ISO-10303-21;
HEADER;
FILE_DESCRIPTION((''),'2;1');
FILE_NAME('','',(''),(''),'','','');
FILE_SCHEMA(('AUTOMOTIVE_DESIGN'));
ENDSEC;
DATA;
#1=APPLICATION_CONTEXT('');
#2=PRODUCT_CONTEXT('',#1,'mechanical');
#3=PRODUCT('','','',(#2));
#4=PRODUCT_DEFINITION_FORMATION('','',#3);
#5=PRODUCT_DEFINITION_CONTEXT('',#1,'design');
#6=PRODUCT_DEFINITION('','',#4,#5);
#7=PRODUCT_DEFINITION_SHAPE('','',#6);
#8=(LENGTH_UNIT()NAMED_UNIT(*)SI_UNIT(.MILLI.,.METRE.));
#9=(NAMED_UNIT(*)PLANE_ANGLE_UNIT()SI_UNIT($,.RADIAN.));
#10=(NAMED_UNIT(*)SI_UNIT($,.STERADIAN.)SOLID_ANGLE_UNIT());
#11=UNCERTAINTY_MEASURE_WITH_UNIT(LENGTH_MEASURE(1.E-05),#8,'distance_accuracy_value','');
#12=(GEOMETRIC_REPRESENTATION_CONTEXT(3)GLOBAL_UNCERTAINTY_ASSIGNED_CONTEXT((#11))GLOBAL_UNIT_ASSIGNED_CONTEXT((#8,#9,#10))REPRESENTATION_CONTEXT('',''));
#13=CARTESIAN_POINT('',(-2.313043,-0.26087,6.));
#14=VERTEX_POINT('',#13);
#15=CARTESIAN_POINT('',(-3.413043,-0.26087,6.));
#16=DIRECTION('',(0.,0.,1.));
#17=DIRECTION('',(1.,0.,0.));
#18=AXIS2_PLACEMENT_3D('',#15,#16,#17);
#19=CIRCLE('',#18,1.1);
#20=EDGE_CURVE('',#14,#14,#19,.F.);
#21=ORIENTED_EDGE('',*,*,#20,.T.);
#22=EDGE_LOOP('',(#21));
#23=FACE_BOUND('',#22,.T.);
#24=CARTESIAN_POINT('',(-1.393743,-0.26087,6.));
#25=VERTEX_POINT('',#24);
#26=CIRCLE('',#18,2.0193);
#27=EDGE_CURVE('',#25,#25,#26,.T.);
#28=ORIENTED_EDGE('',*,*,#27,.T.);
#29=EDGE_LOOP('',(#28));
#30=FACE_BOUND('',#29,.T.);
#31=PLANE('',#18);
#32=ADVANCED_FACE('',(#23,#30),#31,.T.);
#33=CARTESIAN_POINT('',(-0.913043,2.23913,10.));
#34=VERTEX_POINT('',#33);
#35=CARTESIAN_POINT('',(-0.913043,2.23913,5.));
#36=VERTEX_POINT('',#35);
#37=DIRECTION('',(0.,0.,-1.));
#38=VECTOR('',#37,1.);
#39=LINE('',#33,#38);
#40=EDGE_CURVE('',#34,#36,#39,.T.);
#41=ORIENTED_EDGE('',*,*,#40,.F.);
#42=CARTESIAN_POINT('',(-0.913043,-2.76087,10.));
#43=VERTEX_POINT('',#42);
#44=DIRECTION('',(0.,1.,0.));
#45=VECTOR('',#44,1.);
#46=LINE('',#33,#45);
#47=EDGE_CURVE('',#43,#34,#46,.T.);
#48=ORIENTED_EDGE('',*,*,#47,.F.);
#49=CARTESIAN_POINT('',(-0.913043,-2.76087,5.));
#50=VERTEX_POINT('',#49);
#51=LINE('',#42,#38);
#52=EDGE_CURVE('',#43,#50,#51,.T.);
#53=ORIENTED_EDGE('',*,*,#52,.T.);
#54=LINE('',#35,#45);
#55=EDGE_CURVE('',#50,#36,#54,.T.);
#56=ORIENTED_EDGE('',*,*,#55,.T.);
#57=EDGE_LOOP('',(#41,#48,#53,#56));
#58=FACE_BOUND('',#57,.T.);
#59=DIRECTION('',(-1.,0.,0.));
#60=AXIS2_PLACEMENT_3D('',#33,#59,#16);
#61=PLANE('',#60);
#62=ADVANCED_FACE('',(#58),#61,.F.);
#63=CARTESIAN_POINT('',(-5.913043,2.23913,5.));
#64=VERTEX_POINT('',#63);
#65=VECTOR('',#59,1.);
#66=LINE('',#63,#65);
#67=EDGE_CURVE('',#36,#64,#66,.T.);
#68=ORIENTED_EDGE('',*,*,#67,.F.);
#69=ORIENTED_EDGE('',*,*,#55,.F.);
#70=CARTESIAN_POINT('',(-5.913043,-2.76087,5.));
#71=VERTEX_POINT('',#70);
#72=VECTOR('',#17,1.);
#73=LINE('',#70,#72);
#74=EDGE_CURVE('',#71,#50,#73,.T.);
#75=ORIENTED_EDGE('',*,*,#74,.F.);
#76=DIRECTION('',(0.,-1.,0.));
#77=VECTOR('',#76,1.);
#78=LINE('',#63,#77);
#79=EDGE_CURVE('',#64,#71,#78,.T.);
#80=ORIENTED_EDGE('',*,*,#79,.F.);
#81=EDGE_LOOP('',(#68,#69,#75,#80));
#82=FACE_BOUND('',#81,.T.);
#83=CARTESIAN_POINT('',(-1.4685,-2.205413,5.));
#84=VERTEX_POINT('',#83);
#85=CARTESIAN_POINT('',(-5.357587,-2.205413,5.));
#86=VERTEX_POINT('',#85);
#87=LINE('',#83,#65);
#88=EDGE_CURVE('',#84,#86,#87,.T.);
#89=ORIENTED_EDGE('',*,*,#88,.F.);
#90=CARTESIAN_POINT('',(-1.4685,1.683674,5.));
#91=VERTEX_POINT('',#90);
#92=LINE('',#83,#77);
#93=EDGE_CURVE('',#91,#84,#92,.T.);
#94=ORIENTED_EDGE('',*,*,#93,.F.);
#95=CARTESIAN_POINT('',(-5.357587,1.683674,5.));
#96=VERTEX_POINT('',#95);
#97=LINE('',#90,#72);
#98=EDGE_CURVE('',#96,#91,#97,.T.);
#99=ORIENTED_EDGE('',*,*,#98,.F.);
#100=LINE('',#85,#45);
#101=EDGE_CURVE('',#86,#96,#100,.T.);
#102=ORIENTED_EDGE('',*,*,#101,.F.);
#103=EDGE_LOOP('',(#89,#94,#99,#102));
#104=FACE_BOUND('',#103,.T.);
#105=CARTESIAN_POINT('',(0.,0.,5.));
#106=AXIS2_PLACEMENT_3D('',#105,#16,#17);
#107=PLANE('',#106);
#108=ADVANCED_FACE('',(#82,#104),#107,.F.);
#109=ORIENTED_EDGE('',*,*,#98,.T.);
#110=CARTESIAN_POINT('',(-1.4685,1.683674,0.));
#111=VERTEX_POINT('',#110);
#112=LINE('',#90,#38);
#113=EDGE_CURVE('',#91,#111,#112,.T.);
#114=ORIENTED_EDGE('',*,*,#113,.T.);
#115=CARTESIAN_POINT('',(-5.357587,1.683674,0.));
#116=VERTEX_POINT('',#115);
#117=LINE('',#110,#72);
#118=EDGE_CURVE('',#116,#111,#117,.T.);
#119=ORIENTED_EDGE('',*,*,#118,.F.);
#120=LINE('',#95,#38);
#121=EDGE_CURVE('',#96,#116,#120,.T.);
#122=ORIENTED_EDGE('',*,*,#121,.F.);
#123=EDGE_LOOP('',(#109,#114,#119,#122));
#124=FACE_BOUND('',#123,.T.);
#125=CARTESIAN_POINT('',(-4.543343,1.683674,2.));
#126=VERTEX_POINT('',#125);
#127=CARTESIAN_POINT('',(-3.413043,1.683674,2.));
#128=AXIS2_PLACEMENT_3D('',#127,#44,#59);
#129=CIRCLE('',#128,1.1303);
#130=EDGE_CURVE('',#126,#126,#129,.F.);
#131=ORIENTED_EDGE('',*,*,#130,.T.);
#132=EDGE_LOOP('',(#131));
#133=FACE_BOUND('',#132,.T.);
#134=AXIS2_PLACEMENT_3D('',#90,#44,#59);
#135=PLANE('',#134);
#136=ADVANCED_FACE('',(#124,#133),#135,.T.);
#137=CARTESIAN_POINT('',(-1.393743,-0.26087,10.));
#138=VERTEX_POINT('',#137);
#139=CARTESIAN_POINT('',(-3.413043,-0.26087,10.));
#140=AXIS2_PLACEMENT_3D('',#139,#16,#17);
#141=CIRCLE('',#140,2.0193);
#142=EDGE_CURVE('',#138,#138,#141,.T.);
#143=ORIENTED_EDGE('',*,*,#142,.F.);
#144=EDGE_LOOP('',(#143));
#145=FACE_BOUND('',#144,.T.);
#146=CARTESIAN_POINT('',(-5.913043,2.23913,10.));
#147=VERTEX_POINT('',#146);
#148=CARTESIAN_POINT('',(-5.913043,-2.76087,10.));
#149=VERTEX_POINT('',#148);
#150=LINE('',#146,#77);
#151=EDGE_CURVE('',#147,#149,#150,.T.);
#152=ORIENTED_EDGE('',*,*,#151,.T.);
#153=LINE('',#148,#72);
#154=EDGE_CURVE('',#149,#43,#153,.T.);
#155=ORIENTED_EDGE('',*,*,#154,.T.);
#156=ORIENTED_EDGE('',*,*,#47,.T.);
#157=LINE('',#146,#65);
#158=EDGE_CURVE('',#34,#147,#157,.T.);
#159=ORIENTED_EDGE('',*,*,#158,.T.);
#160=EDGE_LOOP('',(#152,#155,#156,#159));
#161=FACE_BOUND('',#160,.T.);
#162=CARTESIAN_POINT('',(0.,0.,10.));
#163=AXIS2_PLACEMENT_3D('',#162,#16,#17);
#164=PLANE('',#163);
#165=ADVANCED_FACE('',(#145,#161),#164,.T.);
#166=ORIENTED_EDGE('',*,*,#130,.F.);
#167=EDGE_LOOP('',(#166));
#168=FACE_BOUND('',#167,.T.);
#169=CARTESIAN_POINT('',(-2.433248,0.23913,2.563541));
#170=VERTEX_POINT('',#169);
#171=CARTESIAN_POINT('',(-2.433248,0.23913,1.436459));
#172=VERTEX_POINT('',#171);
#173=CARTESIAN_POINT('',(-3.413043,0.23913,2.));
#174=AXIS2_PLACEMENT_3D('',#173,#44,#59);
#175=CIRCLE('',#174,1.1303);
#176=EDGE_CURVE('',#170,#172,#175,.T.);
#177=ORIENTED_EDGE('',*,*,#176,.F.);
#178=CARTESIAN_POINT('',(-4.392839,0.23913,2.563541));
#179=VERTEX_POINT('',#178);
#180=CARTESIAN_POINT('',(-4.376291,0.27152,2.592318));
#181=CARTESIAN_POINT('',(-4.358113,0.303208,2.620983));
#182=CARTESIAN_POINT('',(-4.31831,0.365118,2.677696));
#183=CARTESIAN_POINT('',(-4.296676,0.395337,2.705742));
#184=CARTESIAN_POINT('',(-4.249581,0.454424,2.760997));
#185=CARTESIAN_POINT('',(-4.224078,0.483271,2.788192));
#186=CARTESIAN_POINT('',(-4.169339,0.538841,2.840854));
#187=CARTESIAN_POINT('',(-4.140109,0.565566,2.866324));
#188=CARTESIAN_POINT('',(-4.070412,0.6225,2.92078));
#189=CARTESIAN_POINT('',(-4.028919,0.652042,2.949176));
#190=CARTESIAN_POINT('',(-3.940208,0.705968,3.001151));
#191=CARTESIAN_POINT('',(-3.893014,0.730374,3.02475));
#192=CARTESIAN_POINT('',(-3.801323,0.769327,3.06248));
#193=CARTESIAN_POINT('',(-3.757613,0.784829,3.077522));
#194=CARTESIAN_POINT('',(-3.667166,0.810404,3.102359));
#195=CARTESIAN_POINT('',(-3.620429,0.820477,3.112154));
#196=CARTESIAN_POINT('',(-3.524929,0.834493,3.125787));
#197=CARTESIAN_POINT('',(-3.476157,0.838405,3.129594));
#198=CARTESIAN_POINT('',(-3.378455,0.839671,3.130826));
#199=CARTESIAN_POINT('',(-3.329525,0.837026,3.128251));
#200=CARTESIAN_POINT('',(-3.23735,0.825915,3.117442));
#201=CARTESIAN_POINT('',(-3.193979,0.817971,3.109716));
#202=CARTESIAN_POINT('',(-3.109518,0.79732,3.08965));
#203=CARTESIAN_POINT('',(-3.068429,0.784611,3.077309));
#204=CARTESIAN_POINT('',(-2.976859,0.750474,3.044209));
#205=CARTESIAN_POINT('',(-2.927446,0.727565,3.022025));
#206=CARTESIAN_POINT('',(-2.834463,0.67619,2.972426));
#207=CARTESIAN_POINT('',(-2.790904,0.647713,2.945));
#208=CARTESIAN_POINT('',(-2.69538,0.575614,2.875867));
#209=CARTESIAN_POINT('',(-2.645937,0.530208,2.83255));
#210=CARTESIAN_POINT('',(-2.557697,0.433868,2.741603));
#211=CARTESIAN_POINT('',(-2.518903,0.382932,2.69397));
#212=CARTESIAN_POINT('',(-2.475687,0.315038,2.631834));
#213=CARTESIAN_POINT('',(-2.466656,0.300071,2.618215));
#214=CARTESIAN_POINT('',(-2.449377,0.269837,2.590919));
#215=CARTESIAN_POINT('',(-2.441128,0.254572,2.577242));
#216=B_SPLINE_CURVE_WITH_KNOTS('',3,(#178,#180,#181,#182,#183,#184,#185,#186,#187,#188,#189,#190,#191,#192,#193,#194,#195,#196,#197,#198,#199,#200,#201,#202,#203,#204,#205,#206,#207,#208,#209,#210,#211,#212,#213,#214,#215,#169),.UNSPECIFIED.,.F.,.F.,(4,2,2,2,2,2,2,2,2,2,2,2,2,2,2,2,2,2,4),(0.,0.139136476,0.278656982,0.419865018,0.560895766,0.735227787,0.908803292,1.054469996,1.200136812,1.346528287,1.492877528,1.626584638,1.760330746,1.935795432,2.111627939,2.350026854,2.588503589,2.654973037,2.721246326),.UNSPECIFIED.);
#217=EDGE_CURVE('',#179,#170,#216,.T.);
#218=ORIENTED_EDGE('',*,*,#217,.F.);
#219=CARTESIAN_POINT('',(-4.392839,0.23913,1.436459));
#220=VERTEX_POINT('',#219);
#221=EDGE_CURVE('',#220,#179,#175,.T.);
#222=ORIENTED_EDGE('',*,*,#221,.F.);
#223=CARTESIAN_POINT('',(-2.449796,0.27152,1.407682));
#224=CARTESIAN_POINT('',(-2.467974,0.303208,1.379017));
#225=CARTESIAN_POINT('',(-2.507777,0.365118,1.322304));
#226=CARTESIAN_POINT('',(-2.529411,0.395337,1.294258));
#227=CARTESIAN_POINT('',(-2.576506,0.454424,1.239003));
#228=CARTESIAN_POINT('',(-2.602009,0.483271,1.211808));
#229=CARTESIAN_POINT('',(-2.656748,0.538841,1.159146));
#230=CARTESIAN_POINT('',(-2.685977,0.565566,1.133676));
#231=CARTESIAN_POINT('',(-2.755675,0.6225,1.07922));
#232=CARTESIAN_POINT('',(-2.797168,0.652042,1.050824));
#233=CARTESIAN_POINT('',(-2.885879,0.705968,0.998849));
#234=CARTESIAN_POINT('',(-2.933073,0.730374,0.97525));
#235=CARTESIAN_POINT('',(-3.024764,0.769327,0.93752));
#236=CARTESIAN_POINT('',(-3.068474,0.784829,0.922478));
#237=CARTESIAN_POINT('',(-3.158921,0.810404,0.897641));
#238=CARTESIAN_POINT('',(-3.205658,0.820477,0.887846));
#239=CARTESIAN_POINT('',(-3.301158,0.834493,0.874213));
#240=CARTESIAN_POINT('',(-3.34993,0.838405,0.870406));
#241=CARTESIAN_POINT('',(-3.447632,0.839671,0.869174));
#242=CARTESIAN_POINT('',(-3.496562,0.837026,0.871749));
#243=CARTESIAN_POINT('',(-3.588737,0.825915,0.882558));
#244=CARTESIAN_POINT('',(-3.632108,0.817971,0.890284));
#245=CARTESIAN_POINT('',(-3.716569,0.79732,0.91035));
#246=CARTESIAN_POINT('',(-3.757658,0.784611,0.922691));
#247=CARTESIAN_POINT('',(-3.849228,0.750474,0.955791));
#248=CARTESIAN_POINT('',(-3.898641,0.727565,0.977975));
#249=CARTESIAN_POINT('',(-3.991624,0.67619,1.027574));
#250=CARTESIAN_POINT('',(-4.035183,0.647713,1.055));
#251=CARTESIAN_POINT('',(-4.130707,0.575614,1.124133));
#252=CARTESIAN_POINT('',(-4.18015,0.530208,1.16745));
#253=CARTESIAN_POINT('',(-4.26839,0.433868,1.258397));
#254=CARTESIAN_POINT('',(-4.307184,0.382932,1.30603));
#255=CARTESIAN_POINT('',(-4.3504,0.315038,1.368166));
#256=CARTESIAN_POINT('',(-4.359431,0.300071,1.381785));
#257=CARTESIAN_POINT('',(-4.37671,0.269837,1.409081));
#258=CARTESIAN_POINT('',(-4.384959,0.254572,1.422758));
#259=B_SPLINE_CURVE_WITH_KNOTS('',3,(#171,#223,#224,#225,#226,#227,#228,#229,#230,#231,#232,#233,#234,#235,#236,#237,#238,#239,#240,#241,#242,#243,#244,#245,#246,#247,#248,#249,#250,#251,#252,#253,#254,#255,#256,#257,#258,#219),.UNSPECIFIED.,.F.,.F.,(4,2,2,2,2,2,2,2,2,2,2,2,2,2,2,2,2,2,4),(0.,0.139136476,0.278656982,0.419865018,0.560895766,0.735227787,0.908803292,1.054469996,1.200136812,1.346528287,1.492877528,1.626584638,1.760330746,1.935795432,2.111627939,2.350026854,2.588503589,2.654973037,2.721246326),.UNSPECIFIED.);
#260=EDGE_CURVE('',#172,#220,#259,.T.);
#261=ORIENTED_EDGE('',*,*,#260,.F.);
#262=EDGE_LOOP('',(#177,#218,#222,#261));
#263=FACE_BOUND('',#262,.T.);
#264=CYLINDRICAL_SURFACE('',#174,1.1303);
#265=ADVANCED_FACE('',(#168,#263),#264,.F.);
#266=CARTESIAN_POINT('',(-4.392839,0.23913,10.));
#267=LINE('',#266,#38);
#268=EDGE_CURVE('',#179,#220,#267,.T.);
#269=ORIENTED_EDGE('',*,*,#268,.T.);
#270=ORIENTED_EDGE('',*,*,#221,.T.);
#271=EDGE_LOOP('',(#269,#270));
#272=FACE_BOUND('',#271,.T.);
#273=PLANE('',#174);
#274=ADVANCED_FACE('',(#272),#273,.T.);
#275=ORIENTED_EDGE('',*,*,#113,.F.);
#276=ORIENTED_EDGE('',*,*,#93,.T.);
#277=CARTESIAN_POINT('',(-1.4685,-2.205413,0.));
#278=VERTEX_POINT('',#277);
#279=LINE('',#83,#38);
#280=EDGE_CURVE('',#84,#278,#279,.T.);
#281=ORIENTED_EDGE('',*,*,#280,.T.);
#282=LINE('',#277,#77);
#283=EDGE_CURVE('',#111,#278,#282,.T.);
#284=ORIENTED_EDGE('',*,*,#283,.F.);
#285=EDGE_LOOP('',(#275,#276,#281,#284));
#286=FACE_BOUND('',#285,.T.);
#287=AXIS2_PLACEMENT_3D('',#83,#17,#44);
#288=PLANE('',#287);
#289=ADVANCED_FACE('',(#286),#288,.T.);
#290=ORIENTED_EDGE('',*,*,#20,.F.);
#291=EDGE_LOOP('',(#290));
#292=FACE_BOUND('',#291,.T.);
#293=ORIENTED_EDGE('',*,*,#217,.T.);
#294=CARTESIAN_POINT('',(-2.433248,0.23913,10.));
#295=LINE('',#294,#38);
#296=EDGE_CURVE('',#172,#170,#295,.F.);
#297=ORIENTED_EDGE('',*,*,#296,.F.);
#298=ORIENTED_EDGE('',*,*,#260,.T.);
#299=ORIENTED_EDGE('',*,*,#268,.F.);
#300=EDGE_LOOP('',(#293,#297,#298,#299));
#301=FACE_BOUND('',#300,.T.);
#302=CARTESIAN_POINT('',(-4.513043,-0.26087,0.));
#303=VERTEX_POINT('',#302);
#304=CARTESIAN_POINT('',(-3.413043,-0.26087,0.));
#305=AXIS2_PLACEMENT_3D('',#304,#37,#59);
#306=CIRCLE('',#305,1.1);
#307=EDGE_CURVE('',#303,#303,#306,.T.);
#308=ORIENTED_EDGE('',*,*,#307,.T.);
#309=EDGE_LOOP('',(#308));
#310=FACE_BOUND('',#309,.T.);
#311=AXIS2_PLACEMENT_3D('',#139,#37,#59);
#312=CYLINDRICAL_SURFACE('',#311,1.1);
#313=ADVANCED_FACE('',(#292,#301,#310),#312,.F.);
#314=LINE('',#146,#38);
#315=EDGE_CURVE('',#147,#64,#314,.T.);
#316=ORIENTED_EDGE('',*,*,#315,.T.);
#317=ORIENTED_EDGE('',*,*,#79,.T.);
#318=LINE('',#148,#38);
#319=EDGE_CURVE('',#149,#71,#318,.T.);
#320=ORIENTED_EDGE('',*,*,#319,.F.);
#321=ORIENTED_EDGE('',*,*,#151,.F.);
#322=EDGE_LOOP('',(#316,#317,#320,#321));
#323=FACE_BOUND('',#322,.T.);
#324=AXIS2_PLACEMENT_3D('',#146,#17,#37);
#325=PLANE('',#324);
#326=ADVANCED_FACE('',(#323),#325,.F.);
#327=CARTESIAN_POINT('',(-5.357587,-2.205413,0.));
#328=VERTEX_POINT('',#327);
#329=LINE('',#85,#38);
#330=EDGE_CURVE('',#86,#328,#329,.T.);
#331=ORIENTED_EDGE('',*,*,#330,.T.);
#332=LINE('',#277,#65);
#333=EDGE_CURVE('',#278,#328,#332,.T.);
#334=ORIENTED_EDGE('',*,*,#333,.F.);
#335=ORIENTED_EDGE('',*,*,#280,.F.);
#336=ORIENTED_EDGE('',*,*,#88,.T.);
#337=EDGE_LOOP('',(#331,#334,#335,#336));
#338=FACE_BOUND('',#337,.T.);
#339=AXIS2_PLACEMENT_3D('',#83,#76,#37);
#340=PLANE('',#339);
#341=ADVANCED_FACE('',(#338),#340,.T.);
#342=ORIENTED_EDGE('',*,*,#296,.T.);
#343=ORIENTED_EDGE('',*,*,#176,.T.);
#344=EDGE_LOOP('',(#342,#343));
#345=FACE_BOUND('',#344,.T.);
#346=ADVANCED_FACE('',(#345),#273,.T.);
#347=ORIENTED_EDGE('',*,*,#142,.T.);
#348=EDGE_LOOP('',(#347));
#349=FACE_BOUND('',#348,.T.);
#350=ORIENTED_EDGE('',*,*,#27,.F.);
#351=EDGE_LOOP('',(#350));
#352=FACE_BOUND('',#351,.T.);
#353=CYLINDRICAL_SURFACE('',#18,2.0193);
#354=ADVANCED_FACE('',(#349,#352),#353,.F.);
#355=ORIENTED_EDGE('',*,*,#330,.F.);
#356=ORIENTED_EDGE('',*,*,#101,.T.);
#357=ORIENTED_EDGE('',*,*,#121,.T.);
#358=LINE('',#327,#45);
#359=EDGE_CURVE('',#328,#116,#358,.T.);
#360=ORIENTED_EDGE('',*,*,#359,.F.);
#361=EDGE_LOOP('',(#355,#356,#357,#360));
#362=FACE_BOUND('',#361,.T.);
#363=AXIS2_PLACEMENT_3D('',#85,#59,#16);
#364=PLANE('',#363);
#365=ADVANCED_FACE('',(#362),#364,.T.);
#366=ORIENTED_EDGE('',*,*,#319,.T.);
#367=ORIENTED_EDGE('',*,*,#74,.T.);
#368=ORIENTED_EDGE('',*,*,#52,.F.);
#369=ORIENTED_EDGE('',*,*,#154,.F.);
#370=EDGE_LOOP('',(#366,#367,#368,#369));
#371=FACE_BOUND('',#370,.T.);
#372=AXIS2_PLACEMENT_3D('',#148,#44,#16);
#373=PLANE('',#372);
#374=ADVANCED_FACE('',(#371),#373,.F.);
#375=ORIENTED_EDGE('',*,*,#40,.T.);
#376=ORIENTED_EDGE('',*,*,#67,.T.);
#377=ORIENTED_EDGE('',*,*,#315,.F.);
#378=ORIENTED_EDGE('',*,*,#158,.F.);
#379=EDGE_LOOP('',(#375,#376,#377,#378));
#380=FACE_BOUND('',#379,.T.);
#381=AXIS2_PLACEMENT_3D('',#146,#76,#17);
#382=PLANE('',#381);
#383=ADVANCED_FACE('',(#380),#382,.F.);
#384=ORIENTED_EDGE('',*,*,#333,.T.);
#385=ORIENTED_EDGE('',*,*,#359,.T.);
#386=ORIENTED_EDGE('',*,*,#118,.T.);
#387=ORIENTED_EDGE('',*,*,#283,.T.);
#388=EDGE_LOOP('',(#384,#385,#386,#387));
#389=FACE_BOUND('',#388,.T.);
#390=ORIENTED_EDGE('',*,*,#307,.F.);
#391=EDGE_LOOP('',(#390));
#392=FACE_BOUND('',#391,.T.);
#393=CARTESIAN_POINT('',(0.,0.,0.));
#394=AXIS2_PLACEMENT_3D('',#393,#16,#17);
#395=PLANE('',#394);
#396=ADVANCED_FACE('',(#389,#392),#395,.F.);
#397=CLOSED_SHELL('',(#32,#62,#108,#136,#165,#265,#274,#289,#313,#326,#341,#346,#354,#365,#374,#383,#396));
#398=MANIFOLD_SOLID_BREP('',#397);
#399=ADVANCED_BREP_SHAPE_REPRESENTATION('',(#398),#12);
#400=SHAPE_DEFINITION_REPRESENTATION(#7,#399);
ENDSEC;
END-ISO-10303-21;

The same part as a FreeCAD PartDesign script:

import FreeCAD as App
import Part
import Sketcher
from FreeCAD import Vector

doc = App.newDocument("Part")
body = doc.addObject("PartDesign::Body", "Body")

# Sketch on XY plane
sketch1 = doc.addObject("Sketcher::SketchObject", "Sketch")
body.addObject(sketch1)
sketch1.AttachmentSupport = (doc.XY_Plane, [""])
sketch1.MapMode = "FlatFace"
sketch1.addGeometry([
    Part.LineSegment(Vector(-5.913043, 2.23913, 0), Vector(-5.913043, -2.76087, 0)),
    Part.LineSegment(Vector(-5.913043, -2.76087, 0), Vector(-0.913043, -2.76087, 0)),
    Part.LineSegment(Vector(-0.913043, -2.76087, 0), Vector(-0.913043, 2.23913, 0)),
    Part.LineSegment(Vector(-0.913043, 2.23913, 0), Vector(-5.913043, 2.23913, 0)),
], False)
sketch1.addConstraint([
    Sketcher.Constraint("Coincident", 0, 2, 1, 1),
    Sketcher.Constraint("Coincident", 1, 2, 2, 1),
    Sketcher.Constraint("Coincident", 2, 2, 3, 1),
    Sketcher.Constraint("Coincident", 3, 2, 0, 1),
    Sketcher.Constraint("Vertical", 0),
    Sketcher.Constraint("Horizontal", 1),
    Sketcher.Constraint("Vertical", 2),
    Sketcher.Constraint("Horizontal", 3),
    Sketcher.Constraint("Equal", 3, 0),
    Sketcher.Constraint("DistanceX", 1, 1, 1, 2, 5.0),
    Sketcher.Constraint("DistanceY", 0, 2, -1, 1, 2.76087),
    Sketcher.Constraint("DistanceX", 0, 2, -1, 1, 5.913043),
])
pad1 = doc.addObject("PartDesign::Pad", "Pad")
body.addObject(pad1)
pad1.Profile = sketch1
pad1.Length = 10

# Sketch on XY plane
sketch2 = doc.addObject("Sketcher::SketchObject", "Sketch001")
body.addObject(sketch2)
sketch2.AttachmentSupport = (doc.XY_Plane, [""])
sketch2.MapMode = "FlatFace"
sketch2.addGeometry(Part.Circle(Vector(-3.413043, -0.26087, 0), Vector(0, 0, 1), 1.1), False)
sketch2.addConstraint([
    Sketcher.Constraint("Diameter", 0, 2.2),
    Sketcher.Constraint("DistanceY", 0, 3, -1, 1, 0.26087),
    Sketcher.Constraint("DistanceX", 0, 3, -1, 1, 3.413043),
])
pocket1 = doc.addObject("PartDesign::Pocket", "Pocket")
body.addObject(pocket1)
pocket1.Profile = sketch2
pocket1.Type = "ThroughAll"
pocket1.Reversed = True

# Sketch on XY plane
sketch3 = doc.addObject("Sketcher::SketchObject", "Sketch002")
body.addObject(sketch3)
sketch3.AttachmentSupport = (doc.XY_Plane, [""])
sketch3.MapMode = "FlatFace"
sketch3.AttachmentOffset = App.Placement(Vector(0, 0, 10), App.Rotation())
sketch3.addGeometry(Part.Circle(Vector(-3.413043, -0.26087, 0), Vector(0, 0, 1), 2.0193), False)
sketch3.addConstraint([
    Sketcher.Constraint("Diameter", 0, 4.0386),
    Sketcher.Constraint("DistanceY", 0, 3, -1, 1, 0.26087),
    Sketcher.Constraint("DistanceX", 0, 3, -1, 1, 3.413043),
])
pocket2 = doc.addObject("PartDesign::Pocket", "Pocket001")
body.addObject(pocket2)
pocket2.Profile = sketch3
pocket2.Length = 4

# Sketch on XZ plane
sketch4 = doc.addObject("Sketcher::SketchObject", "Sketch003")
body.addObject(sketch4)
sketch4.AttachmentSupport = (doc.XZ_Plane, [""])
sketch4.MapMode = "FlatFace"
sketch4.AttachmentOffset = App.Placement(Vector(0, 0, -2.23913), App.Rotation())
sketch4.addGeometry(Part.Circle(Vector(-3.413043, 2, 0), Vector(0, 0, 1), 1.1303), False)
sketch4.addConstraint([
    Sketcher.Constraint("DistanceY", -1, 1, 0, 3, 2.0),
    Sketcher.Constraint("Diameter", 0, 2.2606),
    Sketcher.Constraint("DistanceX", 0, 3, -1, 1, 3.413043),
])
pocket3 = doc.addObject("PartDesign::Pocket", "Pocket002")
body.addObject(pocket3)
pocket3.Profile = sketch4
pocket3.Length = 2
pocket3.Reversed = True

# Sketch on XY plane
sketch5 = doc.addObject("Sketcher::SketchObject", "Sketch004")
body.addObject(sketch5)
sketch5.AttachmentSupport = (doc.XY_Plane, [""])
sketch5.MapMode = "FlatFace"
sketch5.addGeometry([
    Part.LineSegment(Vector(0, 4.227231, 0), Vector(0, -3.959527, 0)),  # 0
    Part.LineSegment(Vector(0, -3.959527, 0), Vector(-7.037685, -3.959527, 0)),  # 1
    Part.LineSegment(Vector(-7.037685, -3.959527, 0), Vector(-7.037685, 4.227231, 0)),  # 2
    Part.LineSegment(Vector(-7.037685, 4.227231, 0), Vector(0, 4.227231, 0)),  # 3
    Part.LineSegment(Vector(-5.357587, -2.205413, 0), Vector(-1.4685, -2.205413, 0)),  # 4
    Part.LineSegment(Vector(-1.4685, -2.205413, 0), Vector(-1.4685, 1.683674, 0)),  # 5
    Part.LineSegment(Vector(-1.4685, 1.683674, 0), Vector(-5.357587, 1.683674, 0)),  # 6
    Part.LineSegment(Vector(-5.357587, 1.683674, 0), Vector(-5.357587, -2.205413, 0)),  # 7
], False)
sketch5.addConstraint([
    Sketcher.Constraint("Coincident", 0, 2, 1, 1),
    Sketcher.Constraint("Coincident", 1, 2, 2, 1),
    Sketcher.Constraint("Coincident", 2, 2, 3, 1),
    Sketcher.Constraint("Coincident", 3, 2, 0, 1),
    Sketcher.Constraint("Coincident", 4, 2, 5, 1),
    Sketcher.Constraint("Coincident", 5, 2, 6, 1),
    Sketcher.Constraint("Coincident", 6, 2, 7, 1),
    Sketcher.Constraint("Coincident", 7, 2, 4, 1),
    Sketcher.Constraint("Vertical", 0),
    Sketcher.Constraint("Horizontal", 1),
    Sketcher.Constraint("Vertical", 2),
    Sketcher.Constraint("Horizontal", 3),
    Sketcher.Constraint("Horizontal", 4),
    Sketcher.Constraint("Vertical", 5),
    Sketcher.Constraint("Horizontal", 6),
    Sketcher.Constraint("Vertical", 7),
    Sketcher.Constraint("PointOnObject", 0, 2, -2),
    Sketcher.Constraint("Equal", 6, 5),
    Sketcher.Constraint("DistanceX", 4, 2, -1, 1, 1.4685),
    Sketcher.Constraint("DistanceY", 0, 2, 5, 2, 5.643201),
    Sketcher.Constraint("DistanceX", 1, 2, 1, 1, 7.037685),
    Sketcher.Constraint("DistanceX", 4, 1, 4, 2, 3.889087),
    Sketcher.Constraint("DistanceY", 0, 2, 0, 1, 8.186758),
    Sketcher.Constraint("DistanceY", -1, 1, 2, 2, 4.227231),
])
pocket4 = doc.addObject("PartDesign::Pocket", "Pocket003")
body.addObject(pocket4)
pocket4.Profile = sketch5
pocket4.Length = 5
pocket4.Reversed = True

doc.recompute()
